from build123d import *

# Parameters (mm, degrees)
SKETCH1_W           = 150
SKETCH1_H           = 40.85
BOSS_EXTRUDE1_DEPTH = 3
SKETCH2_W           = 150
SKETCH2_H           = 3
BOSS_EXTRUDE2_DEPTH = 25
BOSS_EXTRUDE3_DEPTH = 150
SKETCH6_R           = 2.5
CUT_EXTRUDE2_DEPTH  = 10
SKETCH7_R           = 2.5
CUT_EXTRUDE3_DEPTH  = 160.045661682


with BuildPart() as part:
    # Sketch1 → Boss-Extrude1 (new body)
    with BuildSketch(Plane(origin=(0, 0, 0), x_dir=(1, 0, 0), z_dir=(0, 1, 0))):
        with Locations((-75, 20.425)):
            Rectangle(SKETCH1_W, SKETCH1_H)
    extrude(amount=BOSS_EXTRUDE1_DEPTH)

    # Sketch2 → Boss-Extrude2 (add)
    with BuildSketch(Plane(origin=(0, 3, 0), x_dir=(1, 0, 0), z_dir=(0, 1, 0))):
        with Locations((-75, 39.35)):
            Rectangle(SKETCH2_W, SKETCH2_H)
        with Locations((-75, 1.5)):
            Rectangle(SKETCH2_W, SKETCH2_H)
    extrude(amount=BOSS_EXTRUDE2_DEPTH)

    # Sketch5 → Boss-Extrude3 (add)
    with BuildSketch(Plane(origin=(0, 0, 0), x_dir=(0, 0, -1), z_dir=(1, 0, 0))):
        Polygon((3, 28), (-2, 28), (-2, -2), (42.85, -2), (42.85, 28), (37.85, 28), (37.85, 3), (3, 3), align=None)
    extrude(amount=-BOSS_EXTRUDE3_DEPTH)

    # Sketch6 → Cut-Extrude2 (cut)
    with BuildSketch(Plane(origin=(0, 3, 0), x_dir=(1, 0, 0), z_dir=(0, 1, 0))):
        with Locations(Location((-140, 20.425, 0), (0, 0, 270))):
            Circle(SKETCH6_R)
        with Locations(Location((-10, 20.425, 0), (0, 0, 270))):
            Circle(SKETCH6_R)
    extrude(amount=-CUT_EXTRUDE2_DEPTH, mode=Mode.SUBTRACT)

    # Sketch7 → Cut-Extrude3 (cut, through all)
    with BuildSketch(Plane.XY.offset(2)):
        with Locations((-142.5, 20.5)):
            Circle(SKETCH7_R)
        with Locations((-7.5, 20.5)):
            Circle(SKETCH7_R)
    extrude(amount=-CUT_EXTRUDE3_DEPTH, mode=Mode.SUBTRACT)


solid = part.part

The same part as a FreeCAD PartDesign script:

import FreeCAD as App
import Part
import Sketcher

V = App.Vector
Q = App.Units.Quantity

doc = App.newDocument("Part")
body = doc.addObject("PartDesign::Body", "Body")

sketch1 = doc.addObject("Sketcher::SketchObject", "Sketch")
body.addObject(sketch1)
sketch1.AttachmentSupport = (doc.XZ_Plane, [""])
sketch1.MapMode = "FlatFace"
sketch1.addGeometry(Part.LineSegment(V(-150, -40.85, 0), V(-150, 0, 0)), False)
sketch1.addGeometry(Part.LineSegment(V(-150, 0, 0), V(0, 0, 0)), False)
sketch1.addGeometry(Part.LineSegment(V(0, 0, 0), V(0, -40.85, 0)), False)
sketch1.addGeometry(Part.LineSegment(V(0, -40.85, 0), V(-150, -40.85, 0)), False)
sketch1.addConstraint(Sketcher.Constraint("Coincident", 0, 2, 1, 1))
sketch1.addConstraint(Sketcher.Constraint("Coincident", 1, 2, 2, 1))
sketch1.addConstraint(Sketcher.Constraint("Coincident", 2, 2, 3, 1))
sketch1.addConstraint(Sketcher.Constraint("Coincident", 3, 2, 0, 1))
sketch1.addConstraint(Sketcher.Constraint("Vertical", 0))
sketch1.addConstraint(Sketcher.Constraint("Horizontal", 1))
sketch1.addConstraint(Sketcher.Constraint("Vertical", 2))
sketch1.addConstraint(Sketcher.Constraint("Horizontal", 3))
sketch1.addConstraint(Sketcher.Constraint("Coincident", 1, 2, -1, 1))
sketch1.addConstraint(Sketcher.Constraint("DistanceX", 1, 1, 1, 2, Q("150 mm")))
sketch1.addConstraint(Sketcher.Constraint("DistanceY", 0, 1, 0, 2, Q("40.85 mm")))
pad1 = doc.addObject("PartDesign::Pad", "Pad")
body.addObject(pad1)
pad1.Profile = sketch1
pad1.Length = 3
pad1.Reversed = True

sketch2 = doc.addObject("Sketcher::SketchObject", "Sketch001")
body.addObject(sketch2)
sketch2.AttachmentSupport = (doc.XZ_Plane, [""])
sketch2.MapMode = "FlatFace"
sketch2.AttachmentOffset = App.Placement(V(0, 0, -3), App.Rotation())
sketch2.addGeometry(Part.LineSegment(V(-150, -40.85, 0), V(-150, -37.85, 0)), False)
sketch2.addGeometry(Part.LineSegment(V(-150, -37.85, 0), V(0, -37.85, 0)), False)
sketch2.addGeometry(Part.LineSegment(V(0, -37.85, 0), V(0, -40.85, 0)), False)
sketch2.addGeometry(Part.LineSegment(V(0, -40.85, 0), V(-150, -40.85, 0)), False)
sketch2.addGeometry(Part.LineSegment(V(-150, -3, 0), V(-150, 0, 0)), False)
sketch2.addGeometry(Part.LineSegment(V(-150, 0, 0), V(0, 0, 0)), False)
sketch2.addGeometry(Part.LineSegment(V(0, 0, 0), V(0, -3, 0)), False)
sketch2.addGeometry(Part.LineSegment(V(0, -3, 0), V(-150, -3, 0)), False)
sketch2.addConstraint(Sketcher.Constraint("Coincident", 0, 2, 1, 1))
sketch2.addConstraint(Sketcher.Constraint("Coincident", 1, 2, 2, 1))
sketch2.addConstraint(Sketcher.Constraint("Coincident", 2, 2, 3, 1))
sketch2.addConstraint(Sketcher.Constraint("Coincident", 3, 2, 0, 1))
sketch2.addConstraint(Sketcher.Constraint("Coincident", 4, 2, 5, 1))
sketch2.addConstraint(Sketcher.Constraint("Coincident", 5, 2, 6, 1))
sketch2.addConstraint(Sketcher.Constraint("Coincident", 6, 2, 7, 1))
sketch2.addConstraint(Sketcher.Constraint("Coincident", 7, 2, 4, 1))
sketch2.addConstraint(Sketcher.Constraint("Vertical", 0))
sketch2.addConstraint(Sketcher.Constraint("Horizontal", 1))
sketch2.addConstraint(Sketcher.Constraint("Vertical", 2))
sketch2.addConstraint(Sketcher.Constraint("Horizontal", 3))
sketch2.addConstraint(Sketcher.Constraint("Vertical", 4))
sketch2.addConstraint(Sketcher.Constraint("Horizontal", 5))
sketch2.addConstraint(Sketcher.Constraint("Vertical", 6))
sketch2.addConstraint(Sketcher.Constraint("Horizontal", 7))
sketch2.addConstraint(Sketcher.Constraint("Coincident", 5, 2, -1, 1))
sketch2.addConstraint(Sketcher.Constraint("PointOnObject", 1, 2, -2))
sketch2.addConstraint(Sketcher.Constraint("Vertical", 3, 2, 4, 2))
sketch2.addConstraint(Sketcher.Constraint("Equal", 2, 4))
sketch2.addConstraint(Sketcher.Constraint("DistanceX", 1, 1, 1, 2, Q("150 mm")))
sketch2.addConstraint(Sketcher.Constraint("DistanceY", 0, 1, 0, 2, Q("3 mm")))
sketch2.addConstraint(Sketcher.Constraint("DistanceY", 0, 2, -1, 1, Q("37.85 mm")))
pad2 = doc.addObject("PartDesign::Pad", "Pad001")
body.addObject(pad2)
pad2.Profile = sketch2
pad2.Length = 25
pad2.Reversed = True

sketch3 = doc.addObject("Sketcher::SketchObject", "Sketch002")
body.addObject(sketch3)
sketch3.AttachmentSupport = (doc.YZ_Plane, [""])
sketch3.MapMode = "FlatFace"
sketch3.addGeometry(Part.LineSegment(V(28, -3, 0), V(28, 2, 0)), False)
sketch3.addGeometry(Part.LineSegment(V(28, 2, 0), V(-2, 2, 0)), False)
sketch3.addGeometry(Part.LineSegment(V(-2, 2, 0), V(-2, -42.85, 0)), False)
sketch3.addGeometry(Part.LineSegment(V(-2, -42.85, 0), V(28, -42.85, 0)), False)
sketch3.addGeometry(Part.LineSegment(V(28, -42.85, 0), V(28, -37.85, 0)), False)
sketch3.addGeometry(Part.LineSegment(V(28, -37.85, 0), V(3, -37.85, 0)), False)
sketch3.addGeometry(Part.LineSegment(V(3, -37.85, 0), V(3, -3, 0)), False)
sketch3.addGeometry(Part.LineSegment(V(3, -3, 0), V(28, -3, 0)), False)
sketch3.addConstraint(Sketcher.Constraint("Coincident", 0, 2, 1, 1))
sketch3.addConstraint(Sketcher.Constraint("Coincident", 1, 2, 2, 1))
sketch3.addConstraint(Sketcher.Constraint("Coincident", 2, 2, 3, 1))
sketch3.addConstraint(Sketcher.Constraint("Coincident", 3, 2, 4, 1))
sketch3.addConstraint(Sketcher.Constraint("Coincident", 4, 2, 5, 1))
sketch3.addConstraint(Sketcher.Constraint("Coincident", 5, 2, 6, 1))
sketch3.addConstraint(Sketcher.Constraint("Coincident", 6, 2, 7, 1))
sketch3.addConstraint(Sketcher.Constraint("Coincident", 7, 2, 0, 1))
sketch3.addConstraint(Sketcher.Constraint("Vertical", 0))
sketch3.addConstraint(Sketcher.Constraint("Horizontal", 1))
sketch3.addConstraint(Sketcher.Constraint("Vertical", 2))
sketch3.addConstraint(Sketcher.Constraint("Horizontal", 3))
sketch3.addConstraint(Sketcher.Constraint("Vertical", 4))
sketch3.addConstraint(Sketcher.Constraint("Horizontal", 5))
sketch3.addConstraint(Sketcher.Constraint("Vertical", 6))
sketch3.addConstraint(Sketcher.Constraint("Horizontal", 7))
sketch3.addConstraint(Sketcher.Constraint("Vertical", 0, 2, 3, 2))
sketch3.addConstraint(Sketcher.Constraint("Equal", 0, 4))
sketch3.addConstraint(Sketcher.Constraint("DistanceX", 1, 2, 1, 1, Q("30 mm")))
sketch3.addConstraint(Sketcher.Constraint("DistanceX", 5, 2, 5, 1, Q("25 mm")))
sketch3.addConstraint(Sketcher.Constraint("DistanceY", 0, 1, 0, 2, Q("5 mm")))
sketch3.addConstraint(Sketcher.Constraint("DistanceX", -1, 1, 0, 2, Q("28 mm")))
sketch3.addConstraint(Sketcher.Constraint("DistanceY", -1, 1, 0, 2, Q("2 mm")))
sketch3.addConstraint(Sketcher.Constraint("DistanceY", 2, 2, 2, 1, Q("44.85 mm")))
pad3 = doc.addObject("PartDesign::Pad", "Pad002")
body.addObject(pad3)
pad3.Profile = sketch3
pad3.Length = 150
pad3.Reversed = True

sketch4 = doc.addObject("Sketcher::SketchObject", "Sketch003")
body.addObject(sketch4)
sketch4.AttachmentSupport = (doc.XZ_Plane, [""])
sketch4.MapMode = "FlatFace"
sketch4.AttachmentOffset = App.Placement(V(0, 0, -3), App.Rotation())
sketch4.addGeometry(Part.Circle(V(-140, -20.425, 0), V(0, 0, 1), 2.5), False)
sketch4.addGeometry(Part.Circle(V(-10, -20.425, 0), V(0, 0, 1), 2.5), False)
sketch4.addConstraint(Sketcher.Constraint("Equal", 0, 1))
sketch4.addConstraint(Sketcher.Constraint("Horizontal", 0, 3, 1, 3))
sketch4.addConstraint(Sketcher.Constraint("Diameter", 0, Q("5 mm")))
sketch4.addConstraint(Sketcher.Constraint("DistanceX", 0, 3, -1, 1, Q("140 mm")))
sketch4.addConstraint(Sketcher.Constraint("DistanceX", 1, 3, -1, 1, Q("10 mm")))
sketch4.addConstraint(Sketcher.Constraint("DistanceY", 0, 3, -1, 1, Q("20.425 mm")))
pocket1 = doc.addObject("PartDesign::Pocket", "Pocket")
body.addObject(pocket1)
pocket1.Profile = sketch4
pocket1.Length = 10
pocket1.Reversed = True

sketch5 = doc.addObject("Sketcher::SketchObject", "Sketch004")
body.addObject(sketch5)
sketch5.AttachmentSupport = (doc.XY_Plane, [""])
sketch5.MapMode = "FlatFace"
sketch5.AttachmentOffset = App.Placement(V(0, 0, 2), App.Rotation())
sketch5.addGeometry(Part.Circle(V(-142.5, 20.5, 0), V(0, 0, 1), 2.5), False)
sketch5.addGeometry(Part.Circle(V(-7.5, 20.5, 0), V(0, 0, 1), 2.5), False)
sketch5.addConstraint(Sketcher.Constraint("Equal", 0, 1))
sketch5.addConstraint(Sketcher.Constraint("Horizontal", 0, 3, 1, 3))
sketch5.addConstraint(Sketcher.Constraint("Diameter", 0, Q("5 mm")))
sketch5.addConstraint(Sketcher.Constraint("DistanceX", 0, 3, 1, 3, Q("135 mm")))
sketch5.addConstraint(Sketcher.Constraint("DistanceX", 0, 3, -1, 1, Q("142.5 mm")))
sketch5.addConstraint(Sketcher.Constraint("DistanceY", -1, 1, 0, 3, Q("20.5 mm")))
pocket2 = doc.addObject("PartDesign::Pocket", "Pocket001")
body.addObject(pocket2)
pocket2.Profile = sketch5
pocket2.Type = "ThroughAll"

doc.recompute()
